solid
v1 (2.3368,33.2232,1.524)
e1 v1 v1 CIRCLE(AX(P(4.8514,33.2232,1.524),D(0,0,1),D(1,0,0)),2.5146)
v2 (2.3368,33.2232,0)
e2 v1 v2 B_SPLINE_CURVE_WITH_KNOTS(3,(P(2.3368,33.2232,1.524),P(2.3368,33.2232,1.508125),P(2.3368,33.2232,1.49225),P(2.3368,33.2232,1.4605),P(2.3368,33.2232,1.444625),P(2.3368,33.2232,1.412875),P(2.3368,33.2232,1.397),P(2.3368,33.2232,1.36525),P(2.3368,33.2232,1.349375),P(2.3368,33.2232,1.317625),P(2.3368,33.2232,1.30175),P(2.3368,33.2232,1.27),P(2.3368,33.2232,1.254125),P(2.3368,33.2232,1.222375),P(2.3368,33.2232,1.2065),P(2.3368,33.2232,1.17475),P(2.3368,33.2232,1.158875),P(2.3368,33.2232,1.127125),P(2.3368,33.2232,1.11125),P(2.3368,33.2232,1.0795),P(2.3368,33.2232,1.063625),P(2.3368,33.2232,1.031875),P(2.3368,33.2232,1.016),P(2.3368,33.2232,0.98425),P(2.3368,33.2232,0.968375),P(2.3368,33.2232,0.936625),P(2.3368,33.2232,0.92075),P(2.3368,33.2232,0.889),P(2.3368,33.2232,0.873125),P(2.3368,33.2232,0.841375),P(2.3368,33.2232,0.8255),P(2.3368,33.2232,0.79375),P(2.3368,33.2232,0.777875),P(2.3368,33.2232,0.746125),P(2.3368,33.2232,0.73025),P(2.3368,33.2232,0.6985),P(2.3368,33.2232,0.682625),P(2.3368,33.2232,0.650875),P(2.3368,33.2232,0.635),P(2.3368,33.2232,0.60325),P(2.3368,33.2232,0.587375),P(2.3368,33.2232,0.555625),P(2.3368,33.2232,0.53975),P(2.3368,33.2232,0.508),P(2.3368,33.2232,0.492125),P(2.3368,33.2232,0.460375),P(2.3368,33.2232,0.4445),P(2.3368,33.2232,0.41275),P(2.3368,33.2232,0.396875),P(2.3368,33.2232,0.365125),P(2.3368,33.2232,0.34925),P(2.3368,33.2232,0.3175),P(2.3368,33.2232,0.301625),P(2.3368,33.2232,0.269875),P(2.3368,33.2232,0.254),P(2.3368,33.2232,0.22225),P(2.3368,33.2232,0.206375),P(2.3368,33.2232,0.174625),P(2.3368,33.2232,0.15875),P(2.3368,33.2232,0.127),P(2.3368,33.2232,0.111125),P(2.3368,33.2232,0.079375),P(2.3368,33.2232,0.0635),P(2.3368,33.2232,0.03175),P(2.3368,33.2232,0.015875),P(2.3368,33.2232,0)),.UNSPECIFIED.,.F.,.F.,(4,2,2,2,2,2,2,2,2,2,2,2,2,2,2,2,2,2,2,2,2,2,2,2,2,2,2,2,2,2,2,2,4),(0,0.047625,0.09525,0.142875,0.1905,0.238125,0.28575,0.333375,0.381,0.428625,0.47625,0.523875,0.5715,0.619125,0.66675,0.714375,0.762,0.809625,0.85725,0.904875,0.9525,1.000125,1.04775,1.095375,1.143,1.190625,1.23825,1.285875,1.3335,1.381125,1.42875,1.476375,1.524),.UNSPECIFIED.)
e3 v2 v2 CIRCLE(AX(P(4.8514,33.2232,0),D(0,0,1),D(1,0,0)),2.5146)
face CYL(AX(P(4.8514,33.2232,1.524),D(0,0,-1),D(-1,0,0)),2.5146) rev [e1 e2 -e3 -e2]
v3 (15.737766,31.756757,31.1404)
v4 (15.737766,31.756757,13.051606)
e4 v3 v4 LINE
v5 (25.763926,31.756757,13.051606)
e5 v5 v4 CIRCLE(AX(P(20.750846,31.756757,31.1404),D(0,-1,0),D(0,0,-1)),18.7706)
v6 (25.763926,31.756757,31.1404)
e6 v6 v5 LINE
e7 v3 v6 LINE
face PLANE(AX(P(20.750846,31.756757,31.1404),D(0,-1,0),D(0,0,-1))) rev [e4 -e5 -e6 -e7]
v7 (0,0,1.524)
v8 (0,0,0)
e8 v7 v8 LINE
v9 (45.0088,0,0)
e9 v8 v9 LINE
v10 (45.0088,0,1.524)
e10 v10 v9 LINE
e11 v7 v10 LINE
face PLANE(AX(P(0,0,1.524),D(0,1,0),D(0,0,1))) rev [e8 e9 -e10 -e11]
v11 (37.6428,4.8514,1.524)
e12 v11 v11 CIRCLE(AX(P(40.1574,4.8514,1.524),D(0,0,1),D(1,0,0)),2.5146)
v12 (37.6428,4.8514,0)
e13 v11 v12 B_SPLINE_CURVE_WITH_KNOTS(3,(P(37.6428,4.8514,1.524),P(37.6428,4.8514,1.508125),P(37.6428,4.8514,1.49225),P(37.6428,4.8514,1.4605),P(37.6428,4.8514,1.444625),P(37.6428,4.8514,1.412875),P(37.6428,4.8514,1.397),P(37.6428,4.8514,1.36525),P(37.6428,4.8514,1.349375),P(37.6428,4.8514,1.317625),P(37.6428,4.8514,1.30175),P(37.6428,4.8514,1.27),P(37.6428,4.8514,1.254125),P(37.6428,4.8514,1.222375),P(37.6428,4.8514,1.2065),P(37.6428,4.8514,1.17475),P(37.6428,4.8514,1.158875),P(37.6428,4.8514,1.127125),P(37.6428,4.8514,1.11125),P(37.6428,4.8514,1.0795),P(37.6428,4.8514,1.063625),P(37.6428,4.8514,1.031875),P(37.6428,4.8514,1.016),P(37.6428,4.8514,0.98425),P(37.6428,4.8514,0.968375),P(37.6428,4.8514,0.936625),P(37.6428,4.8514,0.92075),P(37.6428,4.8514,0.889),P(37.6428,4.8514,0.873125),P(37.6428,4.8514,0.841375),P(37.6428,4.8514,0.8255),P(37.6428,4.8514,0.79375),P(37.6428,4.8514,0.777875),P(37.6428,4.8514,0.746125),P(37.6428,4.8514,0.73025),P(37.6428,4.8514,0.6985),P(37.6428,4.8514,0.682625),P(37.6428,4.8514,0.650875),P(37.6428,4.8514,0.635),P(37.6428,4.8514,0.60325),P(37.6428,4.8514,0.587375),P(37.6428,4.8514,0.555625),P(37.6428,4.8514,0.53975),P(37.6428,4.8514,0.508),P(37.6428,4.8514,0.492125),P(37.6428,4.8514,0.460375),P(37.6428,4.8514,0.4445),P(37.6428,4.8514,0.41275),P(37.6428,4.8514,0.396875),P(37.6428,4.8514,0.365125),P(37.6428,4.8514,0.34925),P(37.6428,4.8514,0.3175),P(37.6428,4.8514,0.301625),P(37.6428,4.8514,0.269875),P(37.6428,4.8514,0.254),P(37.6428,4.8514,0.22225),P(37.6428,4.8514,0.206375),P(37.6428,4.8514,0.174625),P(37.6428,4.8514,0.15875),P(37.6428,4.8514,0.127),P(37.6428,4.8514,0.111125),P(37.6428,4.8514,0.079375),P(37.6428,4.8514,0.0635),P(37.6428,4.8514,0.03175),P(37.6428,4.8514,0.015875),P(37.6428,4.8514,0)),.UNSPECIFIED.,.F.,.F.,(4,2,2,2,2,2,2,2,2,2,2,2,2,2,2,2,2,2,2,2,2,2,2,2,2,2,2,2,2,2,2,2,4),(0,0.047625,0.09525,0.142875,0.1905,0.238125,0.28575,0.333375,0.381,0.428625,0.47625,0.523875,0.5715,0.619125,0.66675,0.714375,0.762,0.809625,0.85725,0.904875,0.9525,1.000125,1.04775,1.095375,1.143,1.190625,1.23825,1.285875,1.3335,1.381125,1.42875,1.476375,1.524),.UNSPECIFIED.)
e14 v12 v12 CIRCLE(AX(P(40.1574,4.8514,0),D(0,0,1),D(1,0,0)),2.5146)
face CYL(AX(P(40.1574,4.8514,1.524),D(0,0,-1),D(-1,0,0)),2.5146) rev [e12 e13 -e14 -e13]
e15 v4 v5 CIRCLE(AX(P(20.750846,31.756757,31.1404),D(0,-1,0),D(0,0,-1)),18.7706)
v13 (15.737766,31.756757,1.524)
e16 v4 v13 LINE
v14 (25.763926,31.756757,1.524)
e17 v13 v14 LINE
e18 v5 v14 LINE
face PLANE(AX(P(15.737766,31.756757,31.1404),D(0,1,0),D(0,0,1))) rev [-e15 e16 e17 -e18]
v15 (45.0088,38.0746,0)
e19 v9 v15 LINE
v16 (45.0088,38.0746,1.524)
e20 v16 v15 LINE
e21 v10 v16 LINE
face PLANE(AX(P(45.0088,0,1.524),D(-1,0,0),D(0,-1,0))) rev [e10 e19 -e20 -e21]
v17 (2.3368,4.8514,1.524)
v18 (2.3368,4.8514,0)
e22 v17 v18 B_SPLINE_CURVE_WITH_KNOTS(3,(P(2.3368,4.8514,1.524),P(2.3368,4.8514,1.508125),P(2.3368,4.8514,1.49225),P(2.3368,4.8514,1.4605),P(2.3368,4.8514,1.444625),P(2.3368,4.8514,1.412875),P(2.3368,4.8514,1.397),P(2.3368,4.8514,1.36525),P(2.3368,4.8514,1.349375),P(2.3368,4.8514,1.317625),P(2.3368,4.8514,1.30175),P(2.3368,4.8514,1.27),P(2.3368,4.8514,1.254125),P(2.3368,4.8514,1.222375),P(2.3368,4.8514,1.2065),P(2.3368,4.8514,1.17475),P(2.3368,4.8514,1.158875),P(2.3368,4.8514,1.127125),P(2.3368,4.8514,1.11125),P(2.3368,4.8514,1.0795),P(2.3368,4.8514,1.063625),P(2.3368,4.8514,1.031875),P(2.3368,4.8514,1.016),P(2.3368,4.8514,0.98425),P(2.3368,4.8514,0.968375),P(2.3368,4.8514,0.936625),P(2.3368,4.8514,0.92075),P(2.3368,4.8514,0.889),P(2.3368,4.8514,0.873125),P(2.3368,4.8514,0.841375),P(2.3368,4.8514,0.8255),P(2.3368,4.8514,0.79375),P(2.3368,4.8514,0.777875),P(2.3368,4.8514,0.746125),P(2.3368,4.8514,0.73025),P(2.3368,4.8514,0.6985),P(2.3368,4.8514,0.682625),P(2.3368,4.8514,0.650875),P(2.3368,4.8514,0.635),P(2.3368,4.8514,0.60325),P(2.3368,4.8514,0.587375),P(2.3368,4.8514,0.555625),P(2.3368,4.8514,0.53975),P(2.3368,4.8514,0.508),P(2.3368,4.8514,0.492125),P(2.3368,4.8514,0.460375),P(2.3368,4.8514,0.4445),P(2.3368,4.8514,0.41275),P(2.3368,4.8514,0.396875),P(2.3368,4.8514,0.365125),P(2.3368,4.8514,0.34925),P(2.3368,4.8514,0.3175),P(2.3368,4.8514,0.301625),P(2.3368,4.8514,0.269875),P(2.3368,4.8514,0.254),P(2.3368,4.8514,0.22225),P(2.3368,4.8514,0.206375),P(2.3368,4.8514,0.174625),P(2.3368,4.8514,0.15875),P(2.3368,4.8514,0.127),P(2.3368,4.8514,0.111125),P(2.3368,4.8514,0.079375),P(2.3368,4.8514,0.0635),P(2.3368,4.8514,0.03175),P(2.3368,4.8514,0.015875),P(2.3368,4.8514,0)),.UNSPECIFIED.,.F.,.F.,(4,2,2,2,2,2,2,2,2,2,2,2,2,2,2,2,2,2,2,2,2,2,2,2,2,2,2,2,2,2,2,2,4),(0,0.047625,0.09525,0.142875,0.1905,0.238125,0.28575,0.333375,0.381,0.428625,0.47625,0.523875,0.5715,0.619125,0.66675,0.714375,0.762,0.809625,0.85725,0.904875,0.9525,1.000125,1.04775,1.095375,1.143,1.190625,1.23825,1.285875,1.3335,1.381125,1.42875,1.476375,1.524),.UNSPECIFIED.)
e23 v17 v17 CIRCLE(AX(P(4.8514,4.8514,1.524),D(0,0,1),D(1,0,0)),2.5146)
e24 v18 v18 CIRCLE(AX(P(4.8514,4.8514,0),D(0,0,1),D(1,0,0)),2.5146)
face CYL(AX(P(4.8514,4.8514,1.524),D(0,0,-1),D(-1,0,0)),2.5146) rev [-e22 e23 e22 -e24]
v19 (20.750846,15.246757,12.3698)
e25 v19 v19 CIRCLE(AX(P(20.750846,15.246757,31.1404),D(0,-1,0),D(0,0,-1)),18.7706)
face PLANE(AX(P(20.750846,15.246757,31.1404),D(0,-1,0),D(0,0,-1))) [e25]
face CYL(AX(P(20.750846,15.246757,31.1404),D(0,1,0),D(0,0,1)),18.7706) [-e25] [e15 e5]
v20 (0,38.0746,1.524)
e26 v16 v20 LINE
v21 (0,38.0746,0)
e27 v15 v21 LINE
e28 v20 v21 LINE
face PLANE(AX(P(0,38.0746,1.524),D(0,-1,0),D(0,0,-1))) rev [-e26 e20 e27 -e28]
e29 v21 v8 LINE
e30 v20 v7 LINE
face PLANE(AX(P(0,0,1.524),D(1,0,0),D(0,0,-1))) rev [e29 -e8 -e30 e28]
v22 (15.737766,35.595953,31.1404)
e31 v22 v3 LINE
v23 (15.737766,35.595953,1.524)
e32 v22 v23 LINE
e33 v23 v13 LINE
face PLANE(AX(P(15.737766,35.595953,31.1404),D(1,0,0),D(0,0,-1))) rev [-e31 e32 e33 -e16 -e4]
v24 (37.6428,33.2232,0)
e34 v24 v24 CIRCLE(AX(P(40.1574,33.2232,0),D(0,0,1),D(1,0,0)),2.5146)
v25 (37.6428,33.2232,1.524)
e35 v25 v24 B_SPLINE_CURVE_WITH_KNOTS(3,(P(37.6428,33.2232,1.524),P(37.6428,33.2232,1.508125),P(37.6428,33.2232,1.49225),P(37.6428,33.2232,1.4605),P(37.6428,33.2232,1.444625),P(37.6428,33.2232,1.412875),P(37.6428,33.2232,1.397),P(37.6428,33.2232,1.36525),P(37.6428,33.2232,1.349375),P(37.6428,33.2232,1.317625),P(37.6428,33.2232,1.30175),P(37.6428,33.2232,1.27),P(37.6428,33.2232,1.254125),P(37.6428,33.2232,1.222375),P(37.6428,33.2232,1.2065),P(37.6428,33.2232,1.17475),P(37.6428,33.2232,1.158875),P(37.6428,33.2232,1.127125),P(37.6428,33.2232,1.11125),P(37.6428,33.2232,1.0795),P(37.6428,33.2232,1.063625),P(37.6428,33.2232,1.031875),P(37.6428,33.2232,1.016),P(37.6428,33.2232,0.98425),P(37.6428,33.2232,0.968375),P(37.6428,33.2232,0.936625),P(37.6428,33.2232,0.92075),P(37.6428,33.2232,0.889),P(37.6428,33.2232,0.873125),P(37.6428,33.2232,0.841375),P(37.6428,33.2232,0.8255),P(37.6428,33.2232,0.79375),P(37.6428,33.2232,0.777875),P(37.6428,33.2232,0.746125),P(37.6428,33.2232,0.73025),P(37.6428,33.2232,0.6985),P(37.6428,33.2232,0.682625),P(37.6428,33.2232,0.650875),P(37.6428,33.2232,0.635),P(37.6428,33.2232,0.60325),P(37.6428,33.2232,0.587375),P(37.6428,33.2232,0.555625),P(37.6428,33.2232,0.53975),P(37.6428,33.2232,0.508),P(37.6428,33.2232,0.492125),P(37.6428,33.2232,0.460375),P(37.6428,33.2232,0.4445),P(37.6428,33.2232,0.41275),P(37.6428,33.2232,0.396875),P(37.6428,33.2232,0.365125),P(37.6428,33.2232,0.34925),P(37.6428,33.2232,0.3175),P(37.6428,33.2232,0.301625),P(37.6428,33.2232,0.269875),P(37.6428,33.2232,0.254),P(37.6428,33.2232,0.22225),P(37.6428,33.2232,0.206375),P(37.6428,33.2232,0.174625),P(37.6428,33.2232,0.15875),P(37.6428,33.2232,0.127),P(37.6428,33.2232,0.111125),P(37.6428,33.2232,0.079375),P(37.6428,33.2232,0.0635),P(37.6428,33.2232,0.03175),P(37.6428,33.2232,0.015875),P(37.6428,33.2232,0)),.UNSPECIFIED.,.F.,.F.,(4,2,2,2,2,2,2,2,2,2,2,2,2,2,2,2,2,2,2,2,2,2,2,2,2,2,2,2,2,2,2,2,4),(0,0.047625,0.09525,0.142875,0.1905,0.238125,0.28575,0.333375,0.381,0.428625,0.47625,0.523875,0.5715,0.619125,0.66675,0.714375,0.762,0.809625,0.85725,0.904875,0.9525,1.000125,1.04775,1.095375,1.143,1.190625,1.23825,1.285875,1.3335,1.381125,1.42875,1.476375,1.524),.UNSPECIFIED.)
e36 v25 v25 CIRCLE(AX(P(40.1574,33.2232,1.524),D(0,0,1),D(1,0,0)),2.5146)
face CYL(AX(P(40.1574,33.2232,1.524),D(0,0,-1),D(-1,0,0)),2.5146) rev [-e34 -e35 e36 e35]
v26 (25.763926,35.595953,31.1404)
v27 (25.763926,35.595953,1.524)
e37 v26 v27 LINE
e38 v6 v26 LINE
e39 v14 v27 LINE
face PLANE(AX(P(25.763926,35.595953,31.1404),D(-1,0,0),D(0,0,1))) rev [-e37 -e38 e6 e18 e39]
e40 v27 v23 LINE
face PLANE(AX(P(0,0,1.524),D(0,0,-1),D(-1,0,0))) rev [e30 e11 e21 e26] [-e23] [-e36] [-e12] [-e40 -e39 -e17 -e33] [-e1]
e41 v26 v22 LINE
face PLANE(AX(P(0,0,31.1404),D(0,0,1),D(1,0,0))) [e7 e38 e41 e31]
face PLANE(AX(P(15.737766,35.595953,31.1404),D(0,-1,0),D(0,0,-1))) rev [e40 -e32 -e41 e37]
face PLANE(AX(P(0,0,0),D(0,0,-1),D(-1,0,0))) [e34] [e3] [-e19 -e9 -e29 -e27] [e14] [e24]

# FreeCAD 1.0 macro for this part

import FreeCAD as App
import Part
import Sketcher

V = App.Vector
Q = App.Units.Quantity


def add_polygon(sketch, points):
    """Adds a closed chain of lines whose ends are joined by coincident constraints."""
    first, n = sketch.GeometryCount, len(points)
    for a, b in zip(points, points[1:] + points[:1]):
        sketch.addGeometry(Part.LineSegment(App.Vector(*a, 0), App.Vector(*b, 0)), False)
    for i in range(n):
        sketch.addConstraint(Sketcher.Constraint("Coincident", first + i, 2, first + (i + 1) % n, 1))

doc = App.newDocument("Part")
body = doc.addObject("PartDesign::Body", "Body")

# Sketch on XY plane
sketch1 = doc.addObject("Sketcher::SketchObject", "Sketch")
body.addObject(sketch1)
sketch1.AttachmentSupport = (doc.XY_Plane, [""])
sketch1.MapMode = "FlatFace"
add_polygon(sketch1, [(0, 38.0746), (0, 0), (45.0088, 0), (45.0088, 38.0746)])  # lines 0-3
sketch1.addGeometry(Part.Circle(V(4.8514, 4.8514, 0), V(0, 0, 1), 2.5146), False)  # 4
sketch1.addGeometry(Part.Circle(V(40.1574, 4.8514, 0), V(0, 0, 1), 2.5146), False)  # 5
sketch1.addGeometry(Part.Circle(V(4.8514, 33.2232, 0), V(0, 0, 1), 2.5146), False)  # 6
sketch1.addGeometry(Part.Circle(V(40.1574, 33.2232, 0), V(0, 0, 1), 2.5146), False)  # 7
sketch1.addConstraint(Sketcher.Constraint("Vertical", 0))
sketch1.addConstraint(Sketcher.Constraint("Horizontal", 1))
sketch1.addConstraint(Sketcher.Constraint("Vertical", 2))
sketch1.addConstraint(Sketcher.Constraint("Horizontal", 3))
sketch1.addConstraint(Sketcher.Constraint("Coincident", 0, 2, -1, 1))
sketch1.addConstraint(Sketcher.Constraint("Equal", 4, 5))
sketch1.addConstraint(Sketcher.Constraint("Equal", 5, 6))
sketch1.addConstraint(Sketcher.Constraint("Equal", 6, 7))
sketch1.addConstraint(Sketcher.Constraint("Horizontal", 4, 3, 5, 3))
sketch1.addConstraint(Sketcher.Constraint("Horizontal", 6, 3, 7, 3))
sketch1.addConstraint(Sketcher.Constraint("Vertical", 4, 3, 6, 3))
sketch1.addConstraint(Sketcher.Constraint("Vertical", 5, 3, 7, 3))
sketch1.addConstraint(Sketcher.Constraint("Diameter", 4, Q("0.198 in")))
sketch1.addConstraint(Sketcher.Constraint("DistanceX", 1, 1, 1, 2, Q("1.772 in")))
sketch1.addConstraint(Sketcher.Constraint("DistanceY", 0, 2, 0, 1, Q("1.499 in")))
sketch1.addConstraint(Sketcher.Constraint("DistanceX", 4, 3, 5, 3, Q("1.39 in")))
sketch1.addConstraint(Sketcher.Constraint("DistanceX", -1, 1, 4, 3, Q("0.191 in")))
sketch1.addConstraint(Sketcher.Constraint("DistanceY", -1, 1, 4, 3, Q("0.191 in")))
sketch1.addConstraint(Sketcher.Constraint("DistanceY", -1, 1, 6, 3, Q("1.308 in")))
pad1 = doc.addObject("PartDesign::Pad", "Pad")
body.addObject(pad1)
pad1.Profile = sketch1
pad1.Length = Q("0.06 in")

# Sketch on XY plane
sketch2 = doc.addObject("Sketcher::SketchObject", "Sketch001")
body.addObject(sketch2)
sketch2.AttachmentSupport = (doc.XY_Plane, [""])
sketch2.MapMode = "FlatFace"
sketch2.AttachmentOffset = App.Placement(V(0, 0, 0.06 * 25.4), App.Rotation())
add_polygon(sketch2, [(15.737766, 35.595953), (15.737766, 31.756757), (25.763926, 31.756757), (25.763926, 35.595953)])  # lines 0-3
sketch2.addConstraint(Sketcher.Constraint("Vertical", 0))
sketch2.addConstraint(Sketcher.Constraint("Horizontal", 1))
sketch2.addConstraint(Sketcher.Constraint("Vertical", 2))
sketch2.addConstraint(Sketcher.Constraint("Horizontal", 3))
sketch2.addConstraint(Sketcher.Constraint("DistanceX", 1, 1, 1, 2, Q("10.02616 mm")))
sketch2.addConstraint(Sketcher.Constraint("DistanceY", 0, 2, 0, 1, Q("3.839196 mm")))
sketch2.addConstraint(Sketcher.Constraint("DistanceX", -1, 1, 0, 2, Q("15.737766 mm")))
sketch2.addConstraint(Sketcher.Constraint("DistanceY", -1, 1, 0, 2, Q("31.756757 mm")))
pad2 = doc.addObject("PartDesign::Pad", "Pad001")
body.addObject(pad2)
pad2.Profile = sketch2
pad2.Length = Q("1.166 in")

# Sketch on XZ plane
sketch3 = doc.addObject("Sketcher::SketchObject", "Sketch002")
body.addObject(sketch3)
sketch3.AttachmentSupport = (doc.XZ_Plane, [""])
sketch3.MapMode = "FlatFace"
sketch3.AttachmentOffset = App.Placement(V(0, 0, -31.756757), App.Rotation())
sketch3.addGeometry(Part.Circle(V(20.750846, 31.1404, 0), V(0, 0, 1), 18.7706), False)
sketch3.addConstraint(Sketcher.Constraint("Diameter", 0, Q("1.478 in")))
sketch3.addConstraint(Sketcher.Constraint("DistanceY", -1, 1, 0, 3, Q("1.226 in")))
sketch3.addConstraint(Sketcher.Constraint("DistanceX", -1, 1, 0, 3, Q("20.750846 mm")))
pad3 = doc.addObject("PartDesign::Pad", "Pad002")
body.addObject(pad3)
pad3.Profile = sketch3
pad3.Length = Q("0.65 in")

doc.recompute()
